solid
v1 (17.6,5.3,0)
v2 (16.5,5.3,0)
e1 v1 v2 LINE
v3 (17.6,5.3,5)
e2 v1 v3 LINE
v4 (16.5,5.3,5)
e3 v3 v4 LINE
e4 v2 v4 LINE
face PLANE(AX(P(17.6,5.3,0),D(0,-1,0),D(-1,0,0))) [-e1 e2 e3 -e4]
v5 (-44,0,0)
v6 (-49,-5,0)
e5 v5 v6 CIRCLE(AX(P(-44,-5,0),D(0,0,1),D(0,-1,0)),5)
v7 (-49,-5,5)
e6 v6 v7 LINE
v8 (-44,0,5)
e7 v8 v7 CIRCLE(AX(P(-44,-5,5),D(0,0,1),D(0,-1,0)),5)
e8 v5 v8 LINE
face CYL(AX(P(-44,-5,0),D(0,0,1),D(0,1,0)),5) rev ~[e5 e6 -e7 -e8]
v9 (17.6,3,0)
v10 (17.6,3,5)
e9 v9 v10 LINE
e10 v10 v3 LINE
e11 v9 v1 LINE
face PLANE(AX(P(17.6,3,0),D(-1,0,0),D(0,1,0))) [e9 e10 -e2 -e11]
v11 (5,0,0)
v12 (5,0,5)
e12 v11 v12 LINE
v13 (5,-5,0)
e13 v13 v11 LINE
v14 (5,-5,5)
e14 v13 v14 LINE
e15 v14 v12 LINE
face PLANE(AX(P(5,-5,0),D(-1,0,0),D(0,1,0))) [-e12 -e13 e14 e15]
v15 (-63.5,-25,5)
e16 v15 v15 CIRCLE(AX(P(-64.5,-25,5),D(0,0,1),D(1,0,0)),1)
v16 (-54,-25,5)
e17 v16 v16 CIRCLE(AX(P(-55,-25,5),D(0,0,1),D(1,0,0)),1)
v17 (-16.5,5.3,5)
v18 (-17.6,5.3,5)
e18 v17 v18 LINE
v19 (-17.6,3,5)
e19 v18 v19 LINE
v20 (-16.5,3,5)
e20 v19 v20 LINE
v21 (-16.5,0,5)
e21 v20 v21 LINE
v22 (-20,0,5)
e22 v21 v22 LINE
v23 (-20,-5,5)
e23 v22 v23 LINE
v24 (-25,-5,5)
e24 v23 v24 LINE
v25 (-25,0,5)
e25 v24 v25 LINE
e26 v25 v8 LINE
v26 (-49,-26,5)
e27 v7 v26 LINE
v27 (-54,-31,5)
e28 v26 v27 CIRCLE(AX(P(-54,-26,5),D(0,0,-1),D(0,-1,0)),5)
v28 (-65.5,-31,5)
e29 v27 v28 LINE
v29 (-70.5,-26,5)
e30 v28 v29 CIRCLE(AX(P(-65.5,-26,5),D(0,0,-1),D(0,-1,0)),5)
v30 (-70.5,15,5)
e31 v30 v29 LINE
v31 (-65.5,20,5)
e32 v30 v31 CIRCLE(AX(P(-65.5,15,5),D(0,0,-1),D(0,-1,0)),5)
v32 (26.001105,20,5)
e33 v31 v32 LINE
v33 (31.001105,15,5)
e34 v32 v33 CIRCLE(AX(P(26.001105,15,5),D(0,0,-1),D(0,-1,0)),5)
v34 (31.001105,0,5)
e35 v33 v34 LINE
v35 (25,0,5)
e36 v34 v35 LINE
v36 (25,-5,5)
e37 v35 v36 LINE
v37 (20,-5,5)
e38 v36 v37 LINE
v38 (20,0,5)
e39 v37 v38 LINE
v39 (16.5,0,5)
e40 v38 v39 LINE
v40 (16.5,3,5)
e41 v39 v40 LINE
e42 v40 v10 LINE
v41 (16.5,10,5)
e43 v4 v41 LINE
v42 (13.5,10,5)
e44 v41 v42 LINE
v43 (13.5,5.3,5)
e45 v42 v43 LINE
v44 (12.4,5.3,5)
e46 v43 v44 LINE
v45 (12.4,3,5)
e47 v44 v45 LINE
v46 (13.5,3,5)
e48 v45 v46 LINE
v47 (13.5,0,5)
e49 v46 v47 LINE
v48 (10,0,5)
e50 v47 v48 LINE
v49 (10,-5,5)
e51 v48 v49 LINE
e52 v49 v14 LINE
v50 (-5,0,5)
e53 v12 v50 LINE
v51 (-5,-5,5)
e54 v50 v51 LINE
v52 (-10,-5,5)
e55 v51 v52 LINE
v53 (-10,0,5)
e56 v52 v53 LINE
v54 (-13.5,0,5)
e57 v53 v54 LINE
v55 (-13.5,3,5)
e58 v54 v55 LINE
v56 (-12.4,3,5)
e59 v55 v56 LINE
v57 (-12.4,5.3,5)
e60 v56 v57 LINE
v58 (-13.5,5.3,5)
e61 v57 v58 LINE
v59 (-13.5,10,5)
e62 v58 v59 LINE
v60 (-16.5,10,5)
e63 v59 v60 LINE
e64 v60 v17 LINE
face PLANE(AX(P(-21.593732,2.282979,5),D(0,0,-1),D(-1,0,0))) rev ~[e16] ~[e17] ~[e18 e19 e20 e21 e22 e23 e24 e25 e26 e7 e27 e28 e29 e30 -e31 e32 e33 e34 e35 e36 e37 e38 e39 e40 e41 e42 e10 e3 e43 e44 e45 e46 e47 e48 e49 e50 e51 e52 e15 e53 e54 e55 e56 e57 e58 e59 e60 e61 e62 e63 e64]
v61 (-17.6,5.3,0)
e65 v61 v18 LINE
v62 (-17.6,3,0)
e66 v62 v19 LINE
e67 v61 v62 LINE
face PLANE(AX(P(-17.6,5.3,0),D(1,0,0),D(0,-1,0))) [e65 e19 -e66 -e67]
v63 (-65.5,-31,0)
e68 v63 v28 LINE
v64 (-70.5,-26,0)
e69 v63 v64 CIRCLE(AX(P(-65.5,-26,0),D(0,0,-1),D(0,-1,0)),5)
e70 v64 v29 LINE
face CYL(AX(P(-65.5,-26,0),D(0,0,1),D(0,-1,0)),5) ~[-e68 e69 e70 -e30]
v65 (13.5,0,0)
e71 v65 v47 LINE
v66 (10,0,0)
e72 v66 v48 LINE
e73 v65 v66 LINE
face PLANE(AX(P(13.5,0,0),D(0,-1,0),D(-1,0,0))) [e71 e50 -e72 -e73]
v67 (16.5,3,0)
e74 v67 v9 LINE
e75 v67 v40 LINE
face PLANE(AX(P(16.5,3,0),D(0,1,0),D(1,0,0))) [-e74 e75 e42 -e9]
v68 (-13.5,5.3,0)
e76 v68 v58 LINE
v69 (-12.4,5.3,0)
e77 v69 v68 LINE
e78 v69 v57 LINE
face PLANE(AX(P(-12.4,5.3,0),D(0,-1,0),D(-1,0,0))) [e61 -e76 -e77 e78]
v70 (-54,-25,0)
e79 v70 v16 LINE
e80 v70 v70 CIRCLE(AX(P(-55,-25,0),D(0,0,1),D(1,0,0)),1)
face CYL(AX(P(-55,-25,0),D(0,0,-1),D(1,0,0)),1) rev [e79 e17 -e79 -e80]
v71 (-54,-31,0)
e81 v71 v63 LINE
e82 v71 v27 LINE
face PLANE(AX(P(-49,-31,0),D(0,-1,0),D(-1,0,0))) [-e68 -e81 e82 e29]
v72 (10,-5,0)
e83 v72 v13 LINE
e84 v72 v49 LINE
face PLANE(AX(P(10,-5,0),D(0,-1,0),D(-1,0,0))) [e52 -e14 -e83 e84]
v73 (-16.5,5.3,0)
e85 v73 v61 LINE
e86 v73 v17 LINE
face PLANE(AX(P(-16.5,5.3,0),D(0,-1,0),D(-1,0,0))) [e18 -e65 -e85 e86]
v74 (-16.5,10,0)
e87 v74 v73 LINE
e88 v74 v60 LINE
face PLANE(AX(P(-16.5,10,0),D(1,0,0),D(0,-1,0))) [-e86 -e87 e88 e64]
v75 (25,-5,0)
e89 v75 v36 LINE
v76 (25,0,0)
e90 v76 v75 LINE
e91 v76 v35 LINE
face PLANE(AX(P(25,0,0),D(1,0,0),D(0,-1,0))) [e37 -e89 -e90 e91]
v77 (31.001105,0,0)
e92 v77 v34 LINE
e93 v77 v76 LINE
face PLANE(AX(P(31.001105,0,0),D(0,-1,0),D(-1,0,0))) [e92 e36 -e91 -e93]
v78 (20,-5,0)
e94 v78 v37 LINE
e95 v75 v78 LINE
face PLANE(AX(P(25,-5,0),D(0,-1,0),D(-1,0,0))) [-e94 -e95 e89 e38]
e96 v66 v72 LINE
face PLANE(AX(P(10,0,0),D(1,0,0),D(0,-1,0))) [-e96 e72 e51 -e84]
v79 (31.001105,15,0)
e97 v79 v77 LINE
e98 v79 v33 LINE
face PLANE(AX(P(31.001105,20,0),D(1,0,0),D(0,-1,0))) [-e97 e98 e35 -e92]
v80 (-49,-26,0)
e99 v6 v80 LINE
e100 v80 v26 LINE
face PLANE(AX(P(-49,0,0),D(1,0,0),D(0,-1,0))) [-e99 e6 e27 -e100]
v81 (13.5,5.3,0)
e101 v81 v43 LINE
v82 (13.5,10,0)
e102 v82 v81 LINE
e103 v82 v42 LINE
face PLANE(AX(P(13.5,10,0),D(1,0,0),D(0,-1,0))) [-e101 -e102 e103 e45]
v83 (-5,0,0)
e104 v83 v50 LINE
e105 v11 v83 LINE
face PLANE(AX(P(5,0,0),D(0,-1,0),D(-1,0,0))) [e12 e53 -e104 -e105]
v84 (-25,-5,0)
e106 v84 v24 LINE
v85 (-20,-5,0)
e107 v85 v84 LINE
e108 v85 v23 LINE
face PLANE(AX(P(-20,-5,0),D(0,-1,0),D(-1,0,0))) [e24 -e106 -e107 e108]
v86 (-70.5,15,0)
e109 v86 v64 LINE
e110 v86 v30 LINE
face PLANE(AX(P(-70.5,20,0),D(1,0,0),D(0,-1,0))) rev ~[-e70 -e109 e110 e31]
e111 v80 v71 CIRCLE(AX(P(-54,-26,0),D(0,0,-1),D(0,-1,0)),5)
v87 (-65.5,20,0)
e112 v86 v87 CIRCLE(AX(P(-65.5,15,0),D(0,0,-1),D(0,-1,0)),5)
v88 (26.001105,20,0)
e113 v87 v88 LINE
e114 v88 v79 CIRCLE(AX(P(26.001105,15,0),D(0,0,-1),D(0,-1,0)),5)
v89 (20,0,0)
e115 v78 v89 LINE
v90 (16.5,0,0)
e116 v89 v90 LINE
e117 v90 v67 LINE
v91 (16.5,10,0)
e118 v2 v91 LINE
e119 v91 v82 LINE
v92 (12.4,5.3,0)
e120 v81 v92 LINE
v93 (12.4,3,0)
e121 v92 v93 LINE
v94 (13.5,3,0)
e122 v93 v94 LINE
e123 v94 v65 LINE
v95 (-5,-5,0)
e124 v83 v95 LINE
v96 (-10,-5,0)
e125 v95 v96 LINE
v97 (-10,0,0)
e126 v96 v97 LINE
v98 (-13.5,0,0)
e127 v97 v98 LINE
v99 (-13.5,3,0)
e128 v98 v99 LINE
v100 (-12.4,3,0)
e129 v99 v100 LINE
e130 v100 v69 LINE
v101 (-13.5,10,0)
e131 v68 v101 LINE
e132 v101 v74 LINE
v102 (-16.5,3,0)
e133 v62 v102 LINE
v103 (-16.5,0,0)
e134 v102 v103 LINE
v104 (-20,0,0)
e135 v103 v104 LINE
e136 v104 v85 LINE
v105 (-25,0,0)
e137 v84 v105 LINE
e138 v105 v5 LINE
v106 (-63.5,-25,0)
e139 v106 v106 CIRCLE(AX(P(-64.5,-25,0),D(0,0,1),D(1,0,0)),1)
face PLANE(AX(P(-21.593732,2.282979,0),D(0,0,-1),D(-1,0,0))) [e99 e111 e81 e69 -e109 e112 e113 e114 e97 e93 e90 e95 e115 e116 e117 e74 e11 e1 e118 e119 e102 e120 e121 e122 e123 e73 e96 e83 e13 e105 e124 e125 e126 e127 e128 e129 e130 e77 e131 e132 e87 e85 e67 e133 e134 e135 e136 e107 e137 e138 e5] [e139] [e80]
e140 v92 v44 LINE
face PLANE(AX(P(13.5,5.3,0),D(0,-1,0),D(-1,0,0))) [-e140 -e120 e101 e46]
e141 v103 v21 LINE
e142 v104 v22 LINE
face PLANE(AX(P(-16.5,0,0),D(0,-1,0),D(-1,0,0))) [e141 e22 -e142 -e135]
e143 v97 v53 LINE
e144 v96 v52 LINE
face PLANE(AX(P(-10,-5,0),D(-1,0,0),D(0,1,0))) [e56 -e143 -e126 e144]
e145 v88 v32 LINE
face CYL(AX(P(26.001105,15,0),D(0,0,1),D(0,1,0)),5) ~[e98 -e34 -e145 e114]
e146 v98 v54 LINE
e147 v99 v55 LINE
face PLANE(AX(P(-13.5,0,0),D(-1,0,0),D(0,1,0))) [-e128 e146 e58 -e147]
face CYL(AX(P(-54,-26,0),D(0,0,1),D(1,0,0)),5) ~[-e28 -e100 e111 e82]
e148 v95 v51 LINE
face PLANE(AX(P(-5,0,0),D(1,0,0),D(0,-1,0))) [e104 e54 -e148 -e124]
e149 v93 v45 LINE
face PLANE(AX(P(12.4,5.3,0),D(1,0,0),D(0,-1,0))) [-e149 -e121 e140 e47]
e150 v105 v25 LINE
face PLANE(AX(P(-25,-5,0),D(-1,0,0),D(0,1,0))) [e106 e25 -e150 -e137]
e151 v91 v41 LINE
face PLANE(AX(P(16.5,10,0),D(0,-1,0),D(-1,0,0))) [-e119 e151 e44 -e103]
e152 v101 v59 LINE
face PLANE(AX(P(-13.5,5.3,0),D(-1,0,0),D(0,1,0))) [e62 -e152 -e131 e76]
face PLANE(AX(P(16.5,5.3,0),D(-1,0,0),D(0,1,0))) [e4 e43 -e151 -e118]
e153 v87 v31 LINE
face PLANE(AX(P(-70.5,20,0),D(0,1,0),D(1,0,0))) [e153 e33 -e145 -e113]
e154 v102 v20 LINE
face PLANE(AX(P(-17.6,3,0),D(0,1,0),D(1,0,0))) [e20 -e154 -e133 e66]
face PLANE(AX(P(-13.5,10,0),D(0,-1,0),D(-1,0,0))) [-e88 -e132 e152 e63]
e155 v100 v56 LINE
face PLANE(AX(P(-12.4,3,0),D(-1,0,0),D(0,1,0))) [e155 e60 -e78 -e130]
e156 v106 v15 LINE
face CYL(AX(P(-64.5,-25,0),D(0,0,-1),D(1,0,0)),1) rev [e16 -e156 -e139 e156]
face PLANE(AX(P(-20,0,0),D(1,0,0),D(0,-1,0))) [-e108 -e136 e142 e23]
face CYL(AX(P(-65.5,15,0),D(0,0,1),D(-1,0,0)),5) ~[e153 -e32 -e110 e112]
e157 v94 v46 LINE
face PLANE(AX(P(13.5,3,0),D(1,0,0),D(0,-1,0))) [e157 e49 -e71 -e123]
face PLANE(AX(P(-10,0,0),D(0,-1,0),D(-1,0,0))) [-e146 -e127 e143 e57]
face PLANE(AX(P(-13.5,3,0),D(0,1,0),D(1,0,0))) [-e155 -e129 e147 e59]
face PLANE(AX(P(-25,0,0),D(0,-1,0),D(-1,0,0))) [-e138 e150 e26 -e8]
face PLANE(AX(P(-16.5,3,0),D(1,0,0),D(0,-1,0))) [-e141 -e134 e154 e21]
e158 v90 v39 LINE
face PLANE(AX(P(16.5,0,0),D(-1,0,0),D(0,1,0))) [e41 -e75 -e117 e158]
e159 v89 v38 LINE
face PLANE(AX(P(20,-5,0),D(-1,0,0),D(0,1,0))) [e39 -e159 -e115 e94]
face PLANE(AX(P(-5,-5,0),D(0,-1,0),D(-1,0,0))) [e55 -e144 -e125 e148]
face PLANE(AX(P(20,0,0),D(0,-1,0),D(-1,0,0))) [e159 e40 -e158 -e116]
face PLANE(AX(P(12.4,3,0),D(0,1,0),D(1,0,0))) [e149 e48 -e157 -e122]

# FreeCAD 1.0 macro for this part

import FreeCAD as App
import Part
import Sketcher


def edges_at(feature, points):
    """Names of the edges that pass closest to the given points."""
    edges = feature.Shape.Edges
    near = lambda p: min(range(len(edges)), key=lambda i: edges[i].distToShape(Part.Vertex(*p))[0])
    return sorted({f"Edge{near(p) + 1}" for p in points})


def add_polygon(sketch, points):
    """Adds a closed chain of lines whose ends are joined by coincident constraints."""
    first, n = sketch.GeometryCount, len(points)
    for a, b in zip(points, points[1:] + points[:1]):
        sketch.addGeometry(Part.LineSegment(App.Vector(*a, 0), App.Vector(*b, 0)), False)
    for i in range(n):
        sketch.addConstraint(Sketcher.Constraint("Coincident", first + i, 2, first + (i + 1) % n, 1))

doc = App.newDocument("Part")
body = doc.addObject("PartDesign::Body", "Body")

sketch1 = body.newObject("Sketcher::SketchObject", "Sketch")
sketch1.AttachmentSupport = (doc.getObject("XY_Plane"), [""])
sketch1.MapMode = "FlatFace"
add_polygon(sketch1, [(-20, 0), (-16.5, 0), (-16.5, 3), (-17.6, 3), (-17.6, 5.3), (-16.5, 5.3), (-16.5, 10), (-13.5, 10), (-13.5, 5.3), (-12.4, 5.3), (-12.4, 3), (-13.5, 3), (-13.5, 0), (-10, 0), (-10, -5), (-5, -5), (-5, 0), (5, 0), (5, -5), (10, -5), (10, 0), (13.5, 0), (13.5, 3), (12.4, 3), (12.4, 5.3), (13.5, 5.3), (13.5, 10), (16.5, 10), (16.5, 5.3), (17.6, 5.3), (17.6, 3), (16.5, 3), (16.5, 0), (20, 0), (20, -5), (25, -5), (25, 0), (31.001105, 0), (31.001105, 20), (-70.5, 20), (-70.5, -31), (-49, -31), (-49, 0), (-25, 0), (-25, -5), (-20, -5)])
sketch1.addGeometry(Part.Circle(App.Vector(-55, -25, 0), App.Vector(0, 0, 1), 1), False)
sketch1.addGeometry(Part.Circle(App.Vector(-64.5, -25, 0), App.Vector(0, 0, 1), 1), False)
sketch1.addConstraint([
    Sketcher.Constraint("Horizontal", 0),
    Sketcher.Constraint("Vertical", 1),
    Sketcher.Constraint("Horizontal", 2),
    Sketcher.Constraint("Vertical", 3),
    Sketcher.Constraint("Horizontal", 4),
    Sketcher.Constraint("Vertical", 5),
    Sketcher.Constraint("Horizontal", 6),
    Sketcher.Constraint("Vertical", 7),
    Sketcher.Constraint("Horizontal", 8),
    Sketcher.Constraint("Vertical", 9),
    Sketcher.Constraint("Horizontal", 10),
    Sketcher.Constraint("Vertical", 11),
    Sketcher.Constraint("Horizontal", 12),
    Sketcher.Constraint("Vertical", 13),
    Sketcher.Constraint("Horizontal", 14),
    Sketcher.Constraint("Vertical", 15),
    Sketcher.Constraint("Horizontal", 16),
    Sketcher.Constraint("Vertical", 17),
    Sketcher.Constraint("Horizontal", 18),
    Sketcher.Constraint("Vertical", 19),
    Sketcher.Constraint("Horizontal", 20),
    Sketcher.Constraint("Vertical", 21),
    Sketcher.Constraint("Horizontal", 22),
    Sketcher.Constraint("Vertical", 23),
    Sketcher.Constraint("Horizontal", 24),
    Sketcher.Constraint("Vertical", 25),
    Sketcher.Constraint("Horizontal", 26),
    Sketcher.Constraint("Vertical", 27),
    Sketcher.Constraint("Horizontal", 28),
    Sketcher.Constraint("Vertical", 29),
    Sketcher.Constraint("Horizontal", 30),
    Sketcher.Constraint("Vertical", 31),
    Sketcher.Constraint("Horizontal", 32),
    Sketcher.Constraint("Vertical", 33),
    Sketcher.Constraint("Horizontal", 34),
    Sketcher.Constraint("Vertical", 35),
    Sketcher.Constraint("Horizontal", 36),
    Sketcher.Constraint("Vertical", 37),
    Sketcher.Constraint("Horizontal", 38),
    Sketcher.Constraint("Vertical", 39),
    Sketcher.Constraint("Horizontal", 40),
    Sketcher.Constraint("Vertical", 41),
    Sketcher.Constraint("Horizontal", 42),
    Sketcher.Constraint("Vertical", 43),
    Sketcher.Constraint("Horizontal", 44),
    Sketcher.Constraint("Vertical", 45),
    Sketcher.Constraint("Equal", 46, 47),
    Sketcher.Constraint("Symmetric", 15, 2, 16, 2, -1, 1),
    Sketcher.Constraint("Symmetric", 12, 2, 19, 2, -1, 1),
    Sketcher.Constraint("Symmetric", 0, 2, 31, 2, -1, 1),
    Sketcher.Constraint("Symmetric", 35, 2, 42, 2, -1, 1),
    Sketcher.Constraint("Symmetric", 11, 2, 20, 2, -2),
    Sketcher.Constraint("Symmetric", 9, 2, 22, 2, -2),
    Sketcher.Constraint("Symmetric", 7, 2, 24, 2, -2),
    Sketcher.Constraint("Symmetric", 5, 2, 26, 2, -2),
    Sketcher.Constraint("Symmetric", 3, 2, 28, 2, -2),
    Sketcher.Constraint("Symmetric", 33, 2, 44, 2, -2),
    Sketcher.Constraint("PointOnObject", 0, 2, -1),
    Sketcher.Constraint("PointOnObject", 35, 2, -1),
    Sketcher.Constraint("Horizontal", 46, 3, 47, 3),
    Sketcher.Constraint("Horizontal", 4, 2, 7, 2),
    Sketcher.Constraint("Horizontal", 2, 2, 9, 2),
    Sketcher.Constraint("Horizontal", 14, 2, 17, 2),
    Sketcher.Constraint("Horizontal", 22, 2, 29, 2),
    Sketcher.Constraint("Horizontal", 18, 2, 33, 2),
    Sketcher.Constraint("Vertical", 1, 2, 4, 2),
    Sketcher.Constraint("Vertical", 7, 2, 10, 2),
    Sketcher.Constraint("Equal", 4, 8),
    Sketcher.Constraint("Equal", 0, 12),
    Sketcher.Constraint("Equal", 18, 34),
    Sketcher.Constraint("Equal", 26, 1),
    Sketcher.Constraint("Equal", 44, 13),
    Sketcher.Constraint("Diameter", 46, 2.0),
    Sketcher.Constraint("DistanceX", 6, 1, 6, 2, 3.0),
    Sketcher.Constraint("DistanceX", 14, 1, 14, 2, 5.0),
    Sketcher.Constraint("DistanceX", 16, 1, 16, 2, 10.0),
    Sketcher.Constraint("DistanceX", 42, 1, 42, 2, 24.0),
    Sketcher.Constraint("DistanceY", 37, 1, 37, 2, 20.0),
    Sketcher.Constraint("DistanceY", 39, 2, 39, 1, 51.0),
    Sketcher.Constraint("DistanceX", 0, 1, 0, 2, 3.5),
    Sketcher.Constraint("DistanceX", 2, 2, 2, 1, 1.1),
    Sketcher.Constraint("DistanceX", 40, 1, 40, 2, 21.5),
    Sketcher.Constraint("DistanceY", 3, 1, 3, 2, 2.3),
    Sketcher.Constraint("DistanceY", 5, 1, 5, 2, 4.7),
    Sketcher.Constraint("DistanceX", 46, 3, -1, 1, 55.0),
    Sketcher.Constraint("DistanceY", 46, 3, -1, 1, 25.0),
    Sketcher.Constraint("DistanceX", 47, 3, 0, 2, 48.0),
    Sketcher.Constraint("DistanceX", 36, 1, 36, 2, 6.001105),
])
pad1 = body.newObject("PartDesign::Pad", "Pad")
pad1.Profile = sketch1
pad1.Length = 5
doc.recompute()

fillet = body.newObject("PartDesign::Fillet", "Fillet")
fillet.Base = (pad1, edges_at(pad1, [
    (-49, 0, 2.5),
    (-49, -31, 2.5),
    (-70.5, -31, 2.5),
    (-70.5, 20, 2.5),
    (31.001, 20, 2.5),
]))
fillet.Radius = 5

doc.recompute()
